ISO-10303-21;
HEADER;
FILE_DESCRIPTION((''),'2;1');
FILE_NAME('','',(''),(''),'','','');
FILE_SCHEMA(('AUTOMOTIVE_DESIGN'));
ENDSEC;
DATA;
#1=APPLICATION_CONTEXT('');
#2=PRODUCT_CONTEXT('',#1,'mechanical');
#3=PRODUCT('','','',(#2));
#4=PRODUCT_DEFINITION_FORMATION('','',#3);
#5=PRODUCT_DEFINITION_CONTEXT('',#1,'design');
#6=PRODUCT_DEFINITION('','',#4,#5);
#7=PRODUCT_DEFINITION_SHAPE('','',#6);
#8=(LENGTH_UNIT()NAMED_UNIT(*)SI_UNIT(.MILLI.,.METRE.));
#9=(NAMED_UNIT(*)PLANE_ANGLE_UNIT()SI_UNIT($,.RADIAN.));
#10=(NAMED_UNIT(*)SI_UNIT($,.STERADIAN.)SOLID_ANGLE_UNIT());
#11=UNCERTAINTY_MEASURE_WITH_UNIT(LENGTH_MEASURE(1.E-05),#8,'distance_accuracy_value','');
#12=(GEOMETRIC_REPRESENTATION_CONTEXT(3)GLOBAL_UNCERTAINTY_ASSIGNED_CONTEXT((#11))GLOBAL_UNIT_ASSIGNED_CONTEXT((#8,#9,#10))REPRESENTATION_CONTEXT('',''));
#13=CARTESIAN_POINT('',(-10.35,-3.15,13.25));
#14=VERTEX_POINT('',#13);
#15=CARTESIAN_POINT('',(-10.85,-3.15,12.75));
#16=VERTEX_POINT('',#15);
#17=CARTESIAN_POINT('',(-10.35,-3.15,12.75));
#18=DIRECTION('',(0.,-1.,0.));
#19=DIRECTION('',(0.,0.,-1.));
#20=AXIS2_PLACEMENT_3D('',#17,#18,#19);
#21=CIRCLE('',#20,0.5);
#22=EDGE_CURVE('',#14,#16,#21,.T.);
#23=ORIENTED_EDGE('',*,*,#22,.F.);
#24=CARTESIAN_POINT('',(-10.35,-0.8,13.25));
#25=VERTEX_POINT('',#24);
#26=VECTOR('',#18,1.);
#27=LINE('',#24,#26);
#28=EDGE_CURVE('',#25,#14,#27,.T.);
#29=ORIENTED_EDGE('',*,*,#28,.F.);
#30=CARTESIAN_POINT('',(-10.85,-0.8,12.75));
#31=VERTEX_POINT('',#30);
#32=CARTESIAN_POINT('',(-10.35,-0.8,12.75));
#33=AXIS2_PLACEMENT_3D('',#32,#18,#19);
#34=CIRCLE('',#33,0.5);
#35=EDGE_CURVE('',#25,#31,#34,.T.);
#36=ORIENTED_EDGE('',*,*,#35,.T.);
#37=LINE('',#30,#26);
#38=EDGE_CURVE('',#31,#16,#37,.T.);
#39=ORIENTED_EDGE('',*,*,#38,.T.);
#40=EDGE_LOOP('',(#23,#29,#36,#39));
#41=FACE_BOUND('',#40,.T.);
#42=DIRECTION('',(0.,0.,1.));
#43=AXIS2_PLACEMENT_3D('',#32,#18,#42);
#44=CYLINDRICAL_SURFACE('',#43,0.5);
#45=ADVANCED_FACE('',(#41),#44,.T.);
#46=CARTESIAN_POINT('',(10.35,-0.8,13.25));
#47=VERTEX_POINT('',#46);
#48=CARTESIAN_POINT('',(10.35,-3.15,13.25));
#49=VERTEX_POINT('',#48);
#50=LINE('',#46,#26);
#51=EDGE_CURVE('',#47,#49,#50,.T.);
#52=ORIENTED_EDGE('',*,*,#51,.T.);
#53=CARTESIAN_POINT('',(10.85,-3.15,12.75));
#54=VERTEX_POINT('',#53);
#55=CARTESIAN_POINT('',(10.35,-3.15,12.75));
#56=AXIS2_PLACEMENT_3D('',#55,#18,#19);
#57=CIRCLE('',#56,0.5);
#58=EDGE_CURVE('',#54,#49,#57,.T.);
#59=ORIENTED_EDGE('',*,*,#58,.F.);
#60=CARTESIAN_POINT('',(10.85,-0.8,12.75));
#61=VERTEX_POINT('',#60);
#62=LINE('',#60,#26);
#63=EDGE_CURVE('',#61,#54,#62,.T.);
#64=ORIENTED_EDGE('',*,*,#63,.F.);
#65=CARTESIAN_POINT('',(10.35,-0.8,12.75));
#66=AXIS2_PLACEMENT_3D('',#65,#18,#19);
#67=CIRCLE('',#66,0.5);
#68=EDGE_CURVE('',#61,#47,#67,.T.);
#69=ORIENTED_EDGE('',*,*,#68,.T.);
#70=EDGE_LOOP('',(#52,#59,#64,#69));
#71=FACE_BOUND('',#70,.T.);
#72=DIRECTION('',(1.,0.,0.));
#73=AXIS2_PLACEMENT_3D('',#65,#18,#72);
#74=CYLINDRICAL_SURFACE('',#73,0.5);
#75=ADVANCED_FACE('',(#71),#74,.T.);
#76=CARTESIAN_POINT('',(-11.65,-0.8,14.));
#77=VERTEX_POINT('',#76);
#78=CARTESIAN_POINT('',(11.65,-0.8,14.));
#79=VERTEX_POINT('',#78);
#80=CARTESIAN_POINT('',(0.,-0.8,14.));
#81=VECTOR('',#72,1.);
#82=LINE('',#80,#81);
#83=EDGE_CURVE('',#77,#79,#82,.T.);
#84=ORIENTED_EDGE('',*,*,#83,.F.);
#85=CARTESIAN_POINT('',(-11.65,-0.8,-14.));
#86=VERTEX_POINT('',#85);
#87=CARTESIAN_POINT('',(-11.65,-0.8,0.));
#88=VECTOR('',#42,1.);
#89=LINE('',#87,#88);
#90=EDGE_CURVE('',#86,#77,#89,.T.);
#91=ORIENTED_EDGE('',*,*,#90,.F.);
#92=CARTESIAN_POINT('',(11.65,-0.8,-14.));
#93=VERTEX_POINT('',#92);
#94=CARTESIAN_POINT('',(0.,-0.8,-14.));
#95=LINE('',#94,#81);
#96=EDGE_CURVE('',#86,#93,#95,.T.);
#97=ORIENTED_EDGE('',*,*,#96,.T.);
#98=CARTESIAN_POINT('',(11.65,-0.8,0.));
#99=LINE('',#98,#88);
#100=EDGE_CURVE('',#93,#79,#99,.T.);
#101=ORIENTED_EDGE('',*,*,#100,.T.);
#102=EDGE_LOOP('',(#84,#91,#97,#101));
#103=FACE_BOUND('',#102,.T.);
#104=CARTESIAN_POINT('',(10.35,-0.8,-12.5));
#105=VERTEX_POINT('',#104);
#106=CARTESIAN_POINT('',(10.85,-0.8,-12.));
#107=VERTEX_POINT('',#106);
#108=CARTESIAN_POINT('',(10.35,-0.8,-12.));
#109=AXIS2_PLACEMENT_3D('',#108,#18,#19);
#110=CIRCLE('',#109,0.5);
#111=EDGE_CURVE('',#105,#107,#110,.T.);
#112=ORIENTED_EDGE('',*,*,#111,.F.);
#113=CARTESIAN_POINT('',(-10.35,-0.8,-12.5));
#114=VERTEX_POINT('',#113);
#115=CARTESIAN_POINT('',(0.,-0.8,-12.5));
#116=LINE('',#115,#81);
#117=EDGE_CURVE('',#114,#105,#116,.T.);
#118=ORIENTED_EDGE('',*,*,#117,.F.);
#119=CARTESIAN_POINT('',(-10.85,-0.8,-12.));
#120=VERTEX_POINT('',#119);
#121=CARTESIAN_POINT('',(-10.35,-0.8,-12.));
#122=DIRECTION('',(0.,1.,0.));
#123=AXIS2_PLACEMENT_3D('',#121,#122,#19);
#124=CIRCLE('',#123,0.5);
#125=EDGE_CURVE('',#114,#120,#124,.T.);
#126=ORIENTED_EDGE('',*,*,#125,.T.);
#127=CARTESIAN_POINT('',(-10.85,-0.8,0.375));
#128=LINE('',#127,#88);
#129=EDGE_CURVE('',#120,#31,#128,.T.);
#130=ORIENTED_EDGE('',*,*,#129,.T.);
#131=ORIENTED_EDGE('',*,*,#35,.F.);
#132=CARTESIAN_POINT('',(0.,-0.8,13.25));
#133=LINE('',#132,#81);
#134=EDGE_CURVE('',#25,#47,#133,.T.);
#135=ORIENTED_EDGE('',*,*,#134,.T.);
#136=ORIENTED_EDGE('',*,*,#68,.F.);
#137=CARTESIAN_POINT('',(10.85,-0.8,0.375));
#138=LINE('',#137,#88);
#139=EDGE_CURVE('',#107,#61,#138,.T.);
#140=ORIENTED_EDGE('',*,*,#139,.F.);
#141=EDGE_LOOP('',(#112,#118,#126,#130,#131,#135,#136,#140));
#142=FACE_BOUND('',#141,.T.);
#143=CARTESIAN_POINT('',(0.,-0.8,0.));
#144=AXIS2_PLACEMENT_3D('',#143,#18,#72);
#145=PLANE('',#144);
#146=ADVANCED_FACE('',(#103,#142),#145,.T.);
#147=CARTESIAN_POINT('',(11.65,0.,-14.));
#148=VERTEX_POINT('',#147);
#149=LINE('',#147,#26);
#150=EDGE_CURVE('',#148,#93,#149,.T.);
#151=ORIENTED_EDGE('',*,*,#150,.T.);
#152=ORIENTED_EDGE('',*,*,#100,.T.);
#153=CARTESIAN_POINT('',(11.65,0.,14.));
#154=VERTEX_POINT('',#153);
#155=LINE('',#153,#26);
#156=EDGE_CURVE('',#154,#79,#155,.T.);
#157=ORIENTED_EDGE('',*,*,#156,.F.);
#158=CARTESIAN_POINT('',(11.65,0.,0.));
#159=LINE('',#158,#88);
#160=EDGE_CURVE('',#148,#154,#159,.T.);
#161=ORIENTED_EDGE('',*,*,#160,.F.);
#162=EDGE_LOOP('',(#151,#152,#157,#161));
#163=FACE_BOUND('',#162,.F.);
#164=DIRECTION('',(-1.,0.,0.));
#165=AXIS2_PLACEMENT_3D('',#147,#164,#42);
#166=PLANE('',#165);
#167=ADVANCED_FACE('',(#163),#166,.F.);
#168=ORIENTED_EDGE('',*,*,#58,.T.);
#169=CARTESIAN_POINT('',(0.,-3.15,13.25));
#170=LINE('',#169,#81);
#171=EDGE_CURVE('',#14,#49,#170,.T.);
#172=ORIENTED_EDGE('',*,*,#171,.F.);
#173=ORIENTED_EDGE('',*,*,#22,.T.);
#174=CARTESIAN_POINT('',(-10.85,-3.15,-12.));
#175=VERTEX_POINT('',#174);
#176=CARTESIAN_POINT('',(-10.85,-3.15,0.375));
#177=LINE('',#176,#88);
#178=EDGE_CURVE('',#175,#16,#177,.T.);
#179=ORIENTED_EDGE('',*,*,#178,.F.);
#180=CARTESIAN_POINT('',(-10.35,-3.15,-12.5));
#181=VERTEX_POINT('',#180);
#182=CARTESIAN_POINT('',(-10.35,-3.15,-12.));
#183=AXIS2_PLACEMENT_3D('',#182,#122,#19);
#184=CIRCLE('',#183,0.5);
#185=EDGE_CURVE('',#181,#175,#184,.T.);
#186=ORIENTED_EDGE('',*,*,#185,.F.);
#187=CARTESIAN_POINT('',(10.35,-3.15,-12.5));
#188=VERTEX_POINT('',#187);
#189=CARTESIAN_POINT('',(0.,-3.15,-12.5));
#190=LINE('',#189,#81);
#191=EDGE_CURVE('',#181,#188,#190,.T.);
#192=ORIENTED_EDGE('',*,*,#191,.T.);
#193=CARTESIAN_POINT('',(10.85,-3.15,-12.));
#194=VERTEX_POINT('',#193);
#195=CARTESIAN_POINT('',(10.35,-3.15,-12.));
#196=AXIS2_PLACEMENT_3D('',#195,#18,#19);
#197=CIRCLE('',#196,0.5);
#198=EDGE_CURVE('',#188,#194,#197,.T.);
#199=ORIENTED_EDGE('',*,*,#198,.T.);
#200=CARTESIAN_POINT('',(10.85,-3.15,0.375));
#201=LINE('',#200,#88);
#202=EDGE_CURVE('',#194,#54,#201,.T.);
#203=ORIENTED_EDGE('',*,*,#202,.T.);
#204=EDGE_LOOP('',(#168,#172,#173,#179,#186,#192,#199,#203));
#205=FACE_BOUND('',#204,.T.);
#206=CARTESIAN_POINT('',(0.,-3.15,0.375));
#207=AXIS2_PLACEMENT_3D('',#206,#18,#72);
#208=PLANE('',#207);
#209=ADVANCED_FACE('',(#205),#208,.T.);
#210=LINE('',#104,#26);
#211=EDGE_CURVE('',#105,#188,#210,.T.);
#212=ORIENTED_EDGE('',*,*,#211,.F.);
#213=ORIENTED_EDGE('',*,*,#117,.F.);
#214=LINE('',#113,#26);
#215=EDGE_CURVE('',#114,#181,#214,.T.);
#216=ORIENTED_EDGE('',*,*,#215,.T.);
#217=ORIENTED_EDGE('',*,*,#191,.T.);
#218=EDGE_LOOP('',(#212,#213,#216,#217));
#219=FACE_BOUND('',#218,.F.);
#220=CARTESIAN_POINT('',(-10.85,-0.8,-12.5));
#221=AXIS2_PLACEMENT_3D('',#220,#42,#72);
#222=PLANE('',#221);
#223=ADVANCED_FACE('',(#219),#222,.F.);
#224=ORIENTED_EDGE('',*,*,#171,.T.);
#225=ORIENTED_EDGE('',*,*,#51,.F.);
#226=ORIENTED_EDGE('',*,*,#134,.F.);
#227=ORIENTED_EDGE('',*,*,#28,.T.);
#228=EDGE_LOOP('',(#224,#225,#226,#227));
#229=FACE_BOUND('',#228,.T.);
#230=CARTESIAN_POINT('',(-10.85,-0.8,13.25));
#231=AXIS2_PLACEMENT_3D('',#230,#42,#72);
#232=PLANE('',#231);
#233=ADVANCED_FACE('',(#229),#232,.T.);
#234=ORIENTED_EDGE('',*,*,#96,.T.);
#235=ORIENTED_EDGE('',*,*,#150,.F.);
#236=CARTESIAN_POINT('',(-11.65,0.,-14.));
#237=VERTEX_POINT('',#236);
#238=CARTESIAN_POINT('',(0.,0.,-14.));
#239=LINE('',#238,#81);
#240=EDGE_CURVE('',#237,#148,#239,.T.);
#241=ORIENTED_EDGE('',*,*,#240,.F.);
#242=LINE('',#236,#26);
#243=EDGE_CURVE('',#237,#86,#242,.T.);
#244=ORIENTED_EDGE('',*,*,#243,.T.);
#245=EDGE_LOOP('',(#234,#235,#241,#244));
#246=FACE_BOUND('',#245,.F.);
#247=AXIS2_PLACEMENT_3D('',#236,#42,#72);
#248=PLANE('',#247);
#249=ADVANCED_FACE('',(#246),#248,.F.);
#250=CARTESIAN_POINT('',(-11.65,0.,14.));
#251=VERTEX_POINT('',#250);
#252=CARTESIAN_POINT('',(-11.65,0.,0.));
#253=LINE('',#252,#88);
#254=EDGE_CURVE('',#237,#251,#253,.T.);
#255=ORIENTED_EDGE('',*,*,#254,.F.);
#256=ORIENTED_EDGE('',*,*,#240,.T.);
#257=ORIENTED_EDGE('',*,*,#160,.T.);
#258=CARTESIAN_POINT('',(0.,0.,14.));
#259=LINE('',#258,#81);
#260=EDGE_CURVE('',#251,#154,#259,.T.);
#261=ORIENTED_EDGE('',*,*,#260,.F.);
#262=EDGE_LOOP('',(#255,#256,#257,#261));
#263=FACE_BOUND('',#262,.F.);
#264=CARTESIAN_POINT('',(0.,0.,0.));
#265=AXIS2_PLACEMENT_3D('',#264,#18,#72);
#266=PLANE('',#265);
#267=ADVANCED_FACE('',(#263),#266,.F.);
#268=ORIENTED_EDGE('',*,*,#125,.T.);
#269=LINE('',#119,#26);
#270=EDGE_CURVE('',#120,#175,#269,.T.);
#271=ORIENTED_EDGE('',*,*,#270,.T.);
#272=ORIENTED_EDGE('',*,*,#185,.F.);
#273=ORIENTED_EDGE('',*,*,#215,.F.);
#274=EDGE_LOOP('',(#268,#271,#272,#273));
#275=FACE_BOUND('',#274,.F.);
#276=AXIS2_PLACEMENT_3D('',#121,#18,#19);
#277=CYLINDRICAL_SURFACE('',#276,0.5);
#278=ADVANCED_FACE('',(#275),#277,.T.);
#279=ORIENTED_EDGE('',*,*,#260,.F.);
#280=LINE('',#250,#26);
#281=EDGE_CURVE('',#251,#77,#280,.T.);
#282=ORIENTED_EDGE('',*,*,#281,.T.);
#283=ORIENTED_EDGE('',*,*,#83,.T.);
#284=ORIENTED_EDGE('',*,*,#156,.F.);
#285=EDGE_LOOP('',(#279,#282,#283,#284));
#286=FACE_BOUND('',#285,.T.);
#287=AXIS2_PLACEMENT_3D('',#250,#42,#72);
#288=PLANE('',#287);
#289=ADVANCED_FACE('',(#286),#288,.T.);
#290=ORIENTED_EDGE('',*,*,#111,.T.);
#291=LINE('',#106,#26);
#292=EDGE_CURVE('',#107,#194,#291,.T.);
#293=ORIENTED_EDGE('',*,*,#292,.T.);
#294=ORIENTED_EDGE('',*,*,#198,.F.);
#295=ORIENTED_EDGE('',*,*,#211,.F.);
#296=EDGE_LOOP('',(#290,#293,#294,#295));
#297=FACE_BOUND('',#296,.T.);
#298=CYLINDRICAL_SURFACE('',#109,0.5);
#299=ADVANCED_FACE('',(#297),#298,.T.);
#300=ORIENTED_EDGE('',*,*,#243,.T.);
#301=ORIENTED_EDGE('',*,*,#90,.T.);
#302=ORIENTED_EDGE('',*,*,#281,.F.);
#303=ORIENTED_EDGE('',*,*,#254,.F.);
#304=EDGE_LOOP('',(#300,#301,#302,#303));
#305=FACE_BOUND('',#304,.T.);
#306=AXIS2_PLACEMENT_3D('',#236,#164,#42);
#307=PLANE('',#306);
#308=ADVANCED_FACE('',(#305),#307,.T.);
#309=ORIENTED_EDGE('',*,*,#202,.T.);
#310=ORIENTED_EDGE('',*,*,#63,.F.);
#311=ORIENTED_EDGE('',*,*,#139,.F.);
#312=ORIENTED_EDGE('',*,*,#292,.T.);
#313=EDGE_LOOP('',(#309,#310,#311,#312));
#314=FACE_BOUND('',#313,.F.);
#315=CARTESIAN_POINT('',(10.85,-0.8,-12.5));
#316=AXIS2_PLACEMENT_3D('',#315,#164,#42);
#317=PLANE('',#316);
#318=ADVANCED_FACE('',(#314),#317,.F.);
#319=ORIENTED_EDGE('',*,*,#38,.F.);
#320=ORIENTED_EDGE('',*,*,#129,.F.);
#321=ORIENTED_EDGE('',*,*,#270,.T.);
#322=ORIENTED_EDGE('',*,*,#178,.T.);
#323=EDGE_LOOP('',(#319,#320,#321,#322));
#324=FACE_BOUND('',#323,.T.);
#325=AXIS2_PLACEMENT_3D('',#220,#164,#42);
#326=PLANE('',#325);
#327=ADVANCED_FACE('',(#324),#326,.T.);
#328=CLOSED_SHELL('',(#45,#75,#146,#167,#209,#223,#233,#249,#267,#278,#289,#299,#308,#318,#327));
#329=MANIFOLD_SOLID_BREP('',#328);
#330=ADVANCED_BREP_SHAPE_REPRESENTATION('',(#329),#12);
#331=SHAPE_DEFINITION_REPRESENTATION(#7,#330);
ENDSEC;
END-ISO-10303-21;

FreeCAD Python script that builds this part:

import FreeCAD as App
import Part
import Sketcher


def edges_at(feature, points):
    """Names of the edges that pass closest to the given points."""
    edges = feature.Shape.Edges
    near = lambda p: min(range(len(edges)), key=lambda i: edges[i].distToShape(Part.Vertex(*p))[0])
    return sorted({f"Edge{near(p) + 1}" for p in points})


def add_polygon(sketch, points):
    """Adds a closed chain of lines whose ends are joined by coincident constraints."""
    first, n = sketch.GeometryCount, len(points)
    for a, b in zip(points, points[1:] + points[:1]):
        sketch.addGeometry(Part.LineSegment(App.Vector(*a, 0), App.Vector(*b, 0)), False)
    for i in range(n):
        sketch.addConstraint(Sketcher.Constraint("Coincident", first + i, 2, first + (i + 1) % n, 1))

doc = App.newDocument("Part")
body = doc.addObject("PartDesign::Body", "Body")

sketch1 = body.newObject("Sketcher::SketchObject", "Sketch")
sketch1.AttachmentSupport = (doc.getObject("XZ_Plane"), [""])
sketch1.MapMode = "FlatFace"
add_polygon(sketch1, [(-12, 14), (-12, -14), (12, -14), (12, 14)])
sketch1.addConstraint([
    Sketcher.Constraint("Vertical", 0),
    Sketcher.Constraint("Horizontal", 1),
    Sketcher.Constraint("Vertical", 2),
    Sketcher.Constraint("Horizontal", 3),
    Sketcher.Constraint("Symmetric", 0, 2, 2, 2, -1, 1),
    Sketcher.Constraint("DistanceY", 0, 2, 0, 1, 28.0),
    Sketcher.Constraint("DistanceX", 1, 1, 1, 2, 23.3),
])
pad1 = body.newObject("PartDesign::Pad", "Pad")
pad1.Profile = sketch1
pad1.Length = 0.8

sketch2 = body.newObject("Sketcher::SketchObject", "Sketch001")
sketch2.AttachmentSupport = (doc.getObject("XZ_Plane"), [""])
sketch2.MapMode = "FlatFace"
sketch2.AttachmentOffset = App.Placement(App.Vector(0, 0, 0.8), App.Rotation())
add_polygon(sketch2, [(-11, 13), (-11, -12), (11, -12), (11, 13)])
sketch2.addConstraint([
    Sketcher.Constraint("Vertical", 0),
    Sketcher.Constraint("Horizontal", 1),
    Sketcher.Constraint("Vertical", 2),
    Sketcher.Constraint("Horizontal", 3),
    Sketcher.Constraint("DistanceX", 1, 1, 1, 2, 21.7),
    Sketcher.Constraint("DistanceY", 0, 2, 0, 1, 25.75),
    Sketcher.Constraint("DistanceY", 0, 2, -1, 1, 12.5),
    Sketcher.Constraint("DistanceX", 0, 2, -1, 1, 10.85),
])
pad2 = body.newObject("PartDesign::Pad", "Pad001")
pad2.Profile = sketch2
pad2.Length = 2.35
doc.recompute()

fillet = body.newObject("PartDesign::Fillet", "Fillet")
fillet.Base = (pad2, edges_at(pad2, [
    (-10.85, -1.975, -12.5),
    (10.85, -1.975, -12.5),
    (10.85, -1.975, 13.25),
    (-10.85, -1.975, 13.25),
]))
fillet.Radius = 0.5

doc.recompute()
